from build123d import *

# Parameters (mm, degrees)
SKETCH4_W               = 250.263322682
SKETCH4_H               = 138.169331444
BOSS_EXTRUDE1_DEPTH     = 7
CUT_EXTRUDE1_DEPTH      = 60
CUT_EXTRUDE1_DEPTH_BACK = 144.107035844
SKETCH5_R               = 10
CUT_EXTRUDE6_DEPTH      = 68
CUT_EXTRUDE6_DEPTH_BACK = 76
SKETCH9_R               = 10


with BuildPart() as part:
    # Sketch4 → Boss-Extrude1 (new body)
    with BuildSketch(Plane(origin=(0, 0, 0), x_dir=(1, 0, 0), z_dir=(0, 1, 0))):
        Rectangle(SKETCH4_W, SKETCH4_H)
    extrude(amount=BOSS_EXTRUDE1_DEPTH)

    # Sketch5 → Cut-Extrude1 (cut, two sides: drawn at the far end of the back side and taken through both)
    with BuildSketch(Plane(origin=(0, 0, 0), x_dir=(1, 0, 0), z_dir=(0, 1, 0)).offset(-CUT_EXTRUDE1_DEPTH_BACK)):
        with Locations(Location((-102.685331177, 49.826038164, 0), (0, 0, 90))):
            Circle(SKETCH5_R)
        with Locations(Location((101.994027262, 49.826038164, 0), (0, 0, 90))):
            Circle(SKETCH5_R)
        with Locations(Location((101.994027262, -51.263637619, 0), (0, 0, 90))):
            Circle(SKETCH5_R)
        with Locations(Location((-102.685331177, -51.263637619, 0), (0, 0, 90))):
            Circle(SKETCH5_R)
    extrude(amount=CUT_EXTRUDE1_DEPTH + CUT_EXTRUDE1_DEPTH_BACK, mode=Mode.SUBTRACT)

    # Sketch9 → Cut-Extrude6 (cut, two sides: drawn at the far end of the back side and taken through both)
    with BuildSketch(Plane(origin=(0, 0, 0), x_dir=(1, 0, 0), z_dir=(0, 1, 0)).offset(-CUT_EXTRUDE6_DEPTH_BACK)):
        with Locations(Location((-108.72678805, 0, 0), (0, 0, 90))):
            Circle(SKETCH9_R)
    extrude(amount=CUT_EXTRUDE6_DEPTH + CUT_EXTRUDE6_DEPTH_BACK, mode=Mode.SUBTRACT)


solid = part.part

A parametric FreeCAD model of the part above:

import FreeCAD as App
import Part
import Sketcher


def add_polygon(sketch, points):
    """Adds a closed chain of lines whose ends are joined by coincident constraints."""
    first, n = sketch.GeometryCount, len(points)
    for a, b in zip(points, points[1:] + points[:1]):
        sketch.addGeometry(Part.LineSegment(App.Vector(*a, 0), App.Vector(*b, 0)), False)
    for i in range(n):
        sketch.addConstraint(Sketcher.Constraint("Coincident", first + i, 2, first + (i + 1) % n, 1))

doc = App.newDocument("Part")
body = doc.addObject("PartDesign::Body", "Body")

sketch1 = body.newObject("Sketcher::SketchObject", "Sketch")
sketch1.AttachmentSupport = (doc.getObject("XZ_Plane"), [""])
sketch1.MapMode = "FlatFace"
add_polygon(sketch1, [(-125, -69), (-125, 69), (125, 69), (125, -69)])
sketch1.addConstraint([
    Sketcher.Constraint("Vertical", 0),
    Sketcher.Constraint("Horizontal", 1),
    Sketcher.Constraint("Vertical", 2),
    Sketcher.Constraint("Horizontal", 3),
    Sketcher.Constraint("Symmetric", 0, 2, 2, 2, -1, 1),
    Sketcher.Constraint("DistanceY", 0, 1, 0, 2, 138.169331),
    Sketcher.Constraint("DistanceX", 1, 1, 1, 2, 250.263323),
])
pad1 = body.newObject("PartDesign::Pad", "Pad")
pad1.Profile = sketch1
pad1.Length = 7
pad1.Reversed = True

sketch2 = body.newObject("Sketcher::SketchObject", "Sketch001")
sketch2.AttachmentSupport = (doc.getObject("XZ_Plane"), [""])
sketch2.MapMode = "FlatFace"
sketch2.addGeometry([
    Part.Circle(App.Vector(-103, -50, 0), App.Vector(0, 0, 1), 10),
    Part.Circle(App.Vector(102, -50, 0), App.Vector(0, 0, 1), 10),
    Part.Circle(App.Vector(102, 51, 0), App.Vector(0, 0, 1), 10),
    Part.Circle(App.Vector(-103, 51, 0), App.Vector(0, 0, 1), 10),
], False)
sketch2.addConstraint([
    Sketcher.Constraint("Equal", 0, 1),
    Sketcher.Constraint("Equal", 1, 2),
    Sketcher.Constraint("Equal", 2, 3),
    Sketcher.Constraint("Horizontal", 0, 3, 1, 3),
    Sketcher.Constraint("Horizontal", 2, 3, 3, 3),
    Sketcher.Constraint("Vertical", 1, 3, 2, 3),
    Sketcher.Constraint("Vertical", 0, 3, 3, 3),
    Sketcher.Constraint("Diameter", 0, 20.0),
    Sketcher.Constraint("DistanceX", 0, 3, -1, 1, 102.685331),
    Sketcher.Constraint("DistanceY", 0, 3, -1, 1, 49.826038),
    Sketcher.Constraint("DistanceX", 0, 3, 1, 3, 204.679358),
    Sketcher.Constraint("DistanceY", -1, 1, 2, 3, 51.263638),
])
pocket1 = body.newObject("PartDesign::Pocket", "Pocket")
pocket1.Profile = sketch2
pocket1.Type = "ThroughAll"
pocket1.Midplane = True

sketch3 = body.newObject("Sketcher::SketchObject", "Sketch002")
sketch3.AttachmentSupport = (doc.getObject("XZ_Plane"), [""])
sketch3.MapMode = "FlatFace"
sketch3.addGeometry(Part.Circle(App.Vector(-109, 0, 0), App.Vector(0, 0, 1), 10), False)
sketch3.addConstraint([
    Sketcher.Constraint("PointOnObject", 0, 3, -1),
    Sketcher.Constraint("Diameter", 0, 20.0),
    Sketcher.Constraint("DistanceX", 0, 3, -1, 1, 108.726788),
])
pocket2 = body.newObject("PartDesign::Pocket", "Pocket001")
pocket2.Profile = sketch3
pocket2.Type = "ThroughAll"
pocket2.Midplane = True

doc.recompute()
